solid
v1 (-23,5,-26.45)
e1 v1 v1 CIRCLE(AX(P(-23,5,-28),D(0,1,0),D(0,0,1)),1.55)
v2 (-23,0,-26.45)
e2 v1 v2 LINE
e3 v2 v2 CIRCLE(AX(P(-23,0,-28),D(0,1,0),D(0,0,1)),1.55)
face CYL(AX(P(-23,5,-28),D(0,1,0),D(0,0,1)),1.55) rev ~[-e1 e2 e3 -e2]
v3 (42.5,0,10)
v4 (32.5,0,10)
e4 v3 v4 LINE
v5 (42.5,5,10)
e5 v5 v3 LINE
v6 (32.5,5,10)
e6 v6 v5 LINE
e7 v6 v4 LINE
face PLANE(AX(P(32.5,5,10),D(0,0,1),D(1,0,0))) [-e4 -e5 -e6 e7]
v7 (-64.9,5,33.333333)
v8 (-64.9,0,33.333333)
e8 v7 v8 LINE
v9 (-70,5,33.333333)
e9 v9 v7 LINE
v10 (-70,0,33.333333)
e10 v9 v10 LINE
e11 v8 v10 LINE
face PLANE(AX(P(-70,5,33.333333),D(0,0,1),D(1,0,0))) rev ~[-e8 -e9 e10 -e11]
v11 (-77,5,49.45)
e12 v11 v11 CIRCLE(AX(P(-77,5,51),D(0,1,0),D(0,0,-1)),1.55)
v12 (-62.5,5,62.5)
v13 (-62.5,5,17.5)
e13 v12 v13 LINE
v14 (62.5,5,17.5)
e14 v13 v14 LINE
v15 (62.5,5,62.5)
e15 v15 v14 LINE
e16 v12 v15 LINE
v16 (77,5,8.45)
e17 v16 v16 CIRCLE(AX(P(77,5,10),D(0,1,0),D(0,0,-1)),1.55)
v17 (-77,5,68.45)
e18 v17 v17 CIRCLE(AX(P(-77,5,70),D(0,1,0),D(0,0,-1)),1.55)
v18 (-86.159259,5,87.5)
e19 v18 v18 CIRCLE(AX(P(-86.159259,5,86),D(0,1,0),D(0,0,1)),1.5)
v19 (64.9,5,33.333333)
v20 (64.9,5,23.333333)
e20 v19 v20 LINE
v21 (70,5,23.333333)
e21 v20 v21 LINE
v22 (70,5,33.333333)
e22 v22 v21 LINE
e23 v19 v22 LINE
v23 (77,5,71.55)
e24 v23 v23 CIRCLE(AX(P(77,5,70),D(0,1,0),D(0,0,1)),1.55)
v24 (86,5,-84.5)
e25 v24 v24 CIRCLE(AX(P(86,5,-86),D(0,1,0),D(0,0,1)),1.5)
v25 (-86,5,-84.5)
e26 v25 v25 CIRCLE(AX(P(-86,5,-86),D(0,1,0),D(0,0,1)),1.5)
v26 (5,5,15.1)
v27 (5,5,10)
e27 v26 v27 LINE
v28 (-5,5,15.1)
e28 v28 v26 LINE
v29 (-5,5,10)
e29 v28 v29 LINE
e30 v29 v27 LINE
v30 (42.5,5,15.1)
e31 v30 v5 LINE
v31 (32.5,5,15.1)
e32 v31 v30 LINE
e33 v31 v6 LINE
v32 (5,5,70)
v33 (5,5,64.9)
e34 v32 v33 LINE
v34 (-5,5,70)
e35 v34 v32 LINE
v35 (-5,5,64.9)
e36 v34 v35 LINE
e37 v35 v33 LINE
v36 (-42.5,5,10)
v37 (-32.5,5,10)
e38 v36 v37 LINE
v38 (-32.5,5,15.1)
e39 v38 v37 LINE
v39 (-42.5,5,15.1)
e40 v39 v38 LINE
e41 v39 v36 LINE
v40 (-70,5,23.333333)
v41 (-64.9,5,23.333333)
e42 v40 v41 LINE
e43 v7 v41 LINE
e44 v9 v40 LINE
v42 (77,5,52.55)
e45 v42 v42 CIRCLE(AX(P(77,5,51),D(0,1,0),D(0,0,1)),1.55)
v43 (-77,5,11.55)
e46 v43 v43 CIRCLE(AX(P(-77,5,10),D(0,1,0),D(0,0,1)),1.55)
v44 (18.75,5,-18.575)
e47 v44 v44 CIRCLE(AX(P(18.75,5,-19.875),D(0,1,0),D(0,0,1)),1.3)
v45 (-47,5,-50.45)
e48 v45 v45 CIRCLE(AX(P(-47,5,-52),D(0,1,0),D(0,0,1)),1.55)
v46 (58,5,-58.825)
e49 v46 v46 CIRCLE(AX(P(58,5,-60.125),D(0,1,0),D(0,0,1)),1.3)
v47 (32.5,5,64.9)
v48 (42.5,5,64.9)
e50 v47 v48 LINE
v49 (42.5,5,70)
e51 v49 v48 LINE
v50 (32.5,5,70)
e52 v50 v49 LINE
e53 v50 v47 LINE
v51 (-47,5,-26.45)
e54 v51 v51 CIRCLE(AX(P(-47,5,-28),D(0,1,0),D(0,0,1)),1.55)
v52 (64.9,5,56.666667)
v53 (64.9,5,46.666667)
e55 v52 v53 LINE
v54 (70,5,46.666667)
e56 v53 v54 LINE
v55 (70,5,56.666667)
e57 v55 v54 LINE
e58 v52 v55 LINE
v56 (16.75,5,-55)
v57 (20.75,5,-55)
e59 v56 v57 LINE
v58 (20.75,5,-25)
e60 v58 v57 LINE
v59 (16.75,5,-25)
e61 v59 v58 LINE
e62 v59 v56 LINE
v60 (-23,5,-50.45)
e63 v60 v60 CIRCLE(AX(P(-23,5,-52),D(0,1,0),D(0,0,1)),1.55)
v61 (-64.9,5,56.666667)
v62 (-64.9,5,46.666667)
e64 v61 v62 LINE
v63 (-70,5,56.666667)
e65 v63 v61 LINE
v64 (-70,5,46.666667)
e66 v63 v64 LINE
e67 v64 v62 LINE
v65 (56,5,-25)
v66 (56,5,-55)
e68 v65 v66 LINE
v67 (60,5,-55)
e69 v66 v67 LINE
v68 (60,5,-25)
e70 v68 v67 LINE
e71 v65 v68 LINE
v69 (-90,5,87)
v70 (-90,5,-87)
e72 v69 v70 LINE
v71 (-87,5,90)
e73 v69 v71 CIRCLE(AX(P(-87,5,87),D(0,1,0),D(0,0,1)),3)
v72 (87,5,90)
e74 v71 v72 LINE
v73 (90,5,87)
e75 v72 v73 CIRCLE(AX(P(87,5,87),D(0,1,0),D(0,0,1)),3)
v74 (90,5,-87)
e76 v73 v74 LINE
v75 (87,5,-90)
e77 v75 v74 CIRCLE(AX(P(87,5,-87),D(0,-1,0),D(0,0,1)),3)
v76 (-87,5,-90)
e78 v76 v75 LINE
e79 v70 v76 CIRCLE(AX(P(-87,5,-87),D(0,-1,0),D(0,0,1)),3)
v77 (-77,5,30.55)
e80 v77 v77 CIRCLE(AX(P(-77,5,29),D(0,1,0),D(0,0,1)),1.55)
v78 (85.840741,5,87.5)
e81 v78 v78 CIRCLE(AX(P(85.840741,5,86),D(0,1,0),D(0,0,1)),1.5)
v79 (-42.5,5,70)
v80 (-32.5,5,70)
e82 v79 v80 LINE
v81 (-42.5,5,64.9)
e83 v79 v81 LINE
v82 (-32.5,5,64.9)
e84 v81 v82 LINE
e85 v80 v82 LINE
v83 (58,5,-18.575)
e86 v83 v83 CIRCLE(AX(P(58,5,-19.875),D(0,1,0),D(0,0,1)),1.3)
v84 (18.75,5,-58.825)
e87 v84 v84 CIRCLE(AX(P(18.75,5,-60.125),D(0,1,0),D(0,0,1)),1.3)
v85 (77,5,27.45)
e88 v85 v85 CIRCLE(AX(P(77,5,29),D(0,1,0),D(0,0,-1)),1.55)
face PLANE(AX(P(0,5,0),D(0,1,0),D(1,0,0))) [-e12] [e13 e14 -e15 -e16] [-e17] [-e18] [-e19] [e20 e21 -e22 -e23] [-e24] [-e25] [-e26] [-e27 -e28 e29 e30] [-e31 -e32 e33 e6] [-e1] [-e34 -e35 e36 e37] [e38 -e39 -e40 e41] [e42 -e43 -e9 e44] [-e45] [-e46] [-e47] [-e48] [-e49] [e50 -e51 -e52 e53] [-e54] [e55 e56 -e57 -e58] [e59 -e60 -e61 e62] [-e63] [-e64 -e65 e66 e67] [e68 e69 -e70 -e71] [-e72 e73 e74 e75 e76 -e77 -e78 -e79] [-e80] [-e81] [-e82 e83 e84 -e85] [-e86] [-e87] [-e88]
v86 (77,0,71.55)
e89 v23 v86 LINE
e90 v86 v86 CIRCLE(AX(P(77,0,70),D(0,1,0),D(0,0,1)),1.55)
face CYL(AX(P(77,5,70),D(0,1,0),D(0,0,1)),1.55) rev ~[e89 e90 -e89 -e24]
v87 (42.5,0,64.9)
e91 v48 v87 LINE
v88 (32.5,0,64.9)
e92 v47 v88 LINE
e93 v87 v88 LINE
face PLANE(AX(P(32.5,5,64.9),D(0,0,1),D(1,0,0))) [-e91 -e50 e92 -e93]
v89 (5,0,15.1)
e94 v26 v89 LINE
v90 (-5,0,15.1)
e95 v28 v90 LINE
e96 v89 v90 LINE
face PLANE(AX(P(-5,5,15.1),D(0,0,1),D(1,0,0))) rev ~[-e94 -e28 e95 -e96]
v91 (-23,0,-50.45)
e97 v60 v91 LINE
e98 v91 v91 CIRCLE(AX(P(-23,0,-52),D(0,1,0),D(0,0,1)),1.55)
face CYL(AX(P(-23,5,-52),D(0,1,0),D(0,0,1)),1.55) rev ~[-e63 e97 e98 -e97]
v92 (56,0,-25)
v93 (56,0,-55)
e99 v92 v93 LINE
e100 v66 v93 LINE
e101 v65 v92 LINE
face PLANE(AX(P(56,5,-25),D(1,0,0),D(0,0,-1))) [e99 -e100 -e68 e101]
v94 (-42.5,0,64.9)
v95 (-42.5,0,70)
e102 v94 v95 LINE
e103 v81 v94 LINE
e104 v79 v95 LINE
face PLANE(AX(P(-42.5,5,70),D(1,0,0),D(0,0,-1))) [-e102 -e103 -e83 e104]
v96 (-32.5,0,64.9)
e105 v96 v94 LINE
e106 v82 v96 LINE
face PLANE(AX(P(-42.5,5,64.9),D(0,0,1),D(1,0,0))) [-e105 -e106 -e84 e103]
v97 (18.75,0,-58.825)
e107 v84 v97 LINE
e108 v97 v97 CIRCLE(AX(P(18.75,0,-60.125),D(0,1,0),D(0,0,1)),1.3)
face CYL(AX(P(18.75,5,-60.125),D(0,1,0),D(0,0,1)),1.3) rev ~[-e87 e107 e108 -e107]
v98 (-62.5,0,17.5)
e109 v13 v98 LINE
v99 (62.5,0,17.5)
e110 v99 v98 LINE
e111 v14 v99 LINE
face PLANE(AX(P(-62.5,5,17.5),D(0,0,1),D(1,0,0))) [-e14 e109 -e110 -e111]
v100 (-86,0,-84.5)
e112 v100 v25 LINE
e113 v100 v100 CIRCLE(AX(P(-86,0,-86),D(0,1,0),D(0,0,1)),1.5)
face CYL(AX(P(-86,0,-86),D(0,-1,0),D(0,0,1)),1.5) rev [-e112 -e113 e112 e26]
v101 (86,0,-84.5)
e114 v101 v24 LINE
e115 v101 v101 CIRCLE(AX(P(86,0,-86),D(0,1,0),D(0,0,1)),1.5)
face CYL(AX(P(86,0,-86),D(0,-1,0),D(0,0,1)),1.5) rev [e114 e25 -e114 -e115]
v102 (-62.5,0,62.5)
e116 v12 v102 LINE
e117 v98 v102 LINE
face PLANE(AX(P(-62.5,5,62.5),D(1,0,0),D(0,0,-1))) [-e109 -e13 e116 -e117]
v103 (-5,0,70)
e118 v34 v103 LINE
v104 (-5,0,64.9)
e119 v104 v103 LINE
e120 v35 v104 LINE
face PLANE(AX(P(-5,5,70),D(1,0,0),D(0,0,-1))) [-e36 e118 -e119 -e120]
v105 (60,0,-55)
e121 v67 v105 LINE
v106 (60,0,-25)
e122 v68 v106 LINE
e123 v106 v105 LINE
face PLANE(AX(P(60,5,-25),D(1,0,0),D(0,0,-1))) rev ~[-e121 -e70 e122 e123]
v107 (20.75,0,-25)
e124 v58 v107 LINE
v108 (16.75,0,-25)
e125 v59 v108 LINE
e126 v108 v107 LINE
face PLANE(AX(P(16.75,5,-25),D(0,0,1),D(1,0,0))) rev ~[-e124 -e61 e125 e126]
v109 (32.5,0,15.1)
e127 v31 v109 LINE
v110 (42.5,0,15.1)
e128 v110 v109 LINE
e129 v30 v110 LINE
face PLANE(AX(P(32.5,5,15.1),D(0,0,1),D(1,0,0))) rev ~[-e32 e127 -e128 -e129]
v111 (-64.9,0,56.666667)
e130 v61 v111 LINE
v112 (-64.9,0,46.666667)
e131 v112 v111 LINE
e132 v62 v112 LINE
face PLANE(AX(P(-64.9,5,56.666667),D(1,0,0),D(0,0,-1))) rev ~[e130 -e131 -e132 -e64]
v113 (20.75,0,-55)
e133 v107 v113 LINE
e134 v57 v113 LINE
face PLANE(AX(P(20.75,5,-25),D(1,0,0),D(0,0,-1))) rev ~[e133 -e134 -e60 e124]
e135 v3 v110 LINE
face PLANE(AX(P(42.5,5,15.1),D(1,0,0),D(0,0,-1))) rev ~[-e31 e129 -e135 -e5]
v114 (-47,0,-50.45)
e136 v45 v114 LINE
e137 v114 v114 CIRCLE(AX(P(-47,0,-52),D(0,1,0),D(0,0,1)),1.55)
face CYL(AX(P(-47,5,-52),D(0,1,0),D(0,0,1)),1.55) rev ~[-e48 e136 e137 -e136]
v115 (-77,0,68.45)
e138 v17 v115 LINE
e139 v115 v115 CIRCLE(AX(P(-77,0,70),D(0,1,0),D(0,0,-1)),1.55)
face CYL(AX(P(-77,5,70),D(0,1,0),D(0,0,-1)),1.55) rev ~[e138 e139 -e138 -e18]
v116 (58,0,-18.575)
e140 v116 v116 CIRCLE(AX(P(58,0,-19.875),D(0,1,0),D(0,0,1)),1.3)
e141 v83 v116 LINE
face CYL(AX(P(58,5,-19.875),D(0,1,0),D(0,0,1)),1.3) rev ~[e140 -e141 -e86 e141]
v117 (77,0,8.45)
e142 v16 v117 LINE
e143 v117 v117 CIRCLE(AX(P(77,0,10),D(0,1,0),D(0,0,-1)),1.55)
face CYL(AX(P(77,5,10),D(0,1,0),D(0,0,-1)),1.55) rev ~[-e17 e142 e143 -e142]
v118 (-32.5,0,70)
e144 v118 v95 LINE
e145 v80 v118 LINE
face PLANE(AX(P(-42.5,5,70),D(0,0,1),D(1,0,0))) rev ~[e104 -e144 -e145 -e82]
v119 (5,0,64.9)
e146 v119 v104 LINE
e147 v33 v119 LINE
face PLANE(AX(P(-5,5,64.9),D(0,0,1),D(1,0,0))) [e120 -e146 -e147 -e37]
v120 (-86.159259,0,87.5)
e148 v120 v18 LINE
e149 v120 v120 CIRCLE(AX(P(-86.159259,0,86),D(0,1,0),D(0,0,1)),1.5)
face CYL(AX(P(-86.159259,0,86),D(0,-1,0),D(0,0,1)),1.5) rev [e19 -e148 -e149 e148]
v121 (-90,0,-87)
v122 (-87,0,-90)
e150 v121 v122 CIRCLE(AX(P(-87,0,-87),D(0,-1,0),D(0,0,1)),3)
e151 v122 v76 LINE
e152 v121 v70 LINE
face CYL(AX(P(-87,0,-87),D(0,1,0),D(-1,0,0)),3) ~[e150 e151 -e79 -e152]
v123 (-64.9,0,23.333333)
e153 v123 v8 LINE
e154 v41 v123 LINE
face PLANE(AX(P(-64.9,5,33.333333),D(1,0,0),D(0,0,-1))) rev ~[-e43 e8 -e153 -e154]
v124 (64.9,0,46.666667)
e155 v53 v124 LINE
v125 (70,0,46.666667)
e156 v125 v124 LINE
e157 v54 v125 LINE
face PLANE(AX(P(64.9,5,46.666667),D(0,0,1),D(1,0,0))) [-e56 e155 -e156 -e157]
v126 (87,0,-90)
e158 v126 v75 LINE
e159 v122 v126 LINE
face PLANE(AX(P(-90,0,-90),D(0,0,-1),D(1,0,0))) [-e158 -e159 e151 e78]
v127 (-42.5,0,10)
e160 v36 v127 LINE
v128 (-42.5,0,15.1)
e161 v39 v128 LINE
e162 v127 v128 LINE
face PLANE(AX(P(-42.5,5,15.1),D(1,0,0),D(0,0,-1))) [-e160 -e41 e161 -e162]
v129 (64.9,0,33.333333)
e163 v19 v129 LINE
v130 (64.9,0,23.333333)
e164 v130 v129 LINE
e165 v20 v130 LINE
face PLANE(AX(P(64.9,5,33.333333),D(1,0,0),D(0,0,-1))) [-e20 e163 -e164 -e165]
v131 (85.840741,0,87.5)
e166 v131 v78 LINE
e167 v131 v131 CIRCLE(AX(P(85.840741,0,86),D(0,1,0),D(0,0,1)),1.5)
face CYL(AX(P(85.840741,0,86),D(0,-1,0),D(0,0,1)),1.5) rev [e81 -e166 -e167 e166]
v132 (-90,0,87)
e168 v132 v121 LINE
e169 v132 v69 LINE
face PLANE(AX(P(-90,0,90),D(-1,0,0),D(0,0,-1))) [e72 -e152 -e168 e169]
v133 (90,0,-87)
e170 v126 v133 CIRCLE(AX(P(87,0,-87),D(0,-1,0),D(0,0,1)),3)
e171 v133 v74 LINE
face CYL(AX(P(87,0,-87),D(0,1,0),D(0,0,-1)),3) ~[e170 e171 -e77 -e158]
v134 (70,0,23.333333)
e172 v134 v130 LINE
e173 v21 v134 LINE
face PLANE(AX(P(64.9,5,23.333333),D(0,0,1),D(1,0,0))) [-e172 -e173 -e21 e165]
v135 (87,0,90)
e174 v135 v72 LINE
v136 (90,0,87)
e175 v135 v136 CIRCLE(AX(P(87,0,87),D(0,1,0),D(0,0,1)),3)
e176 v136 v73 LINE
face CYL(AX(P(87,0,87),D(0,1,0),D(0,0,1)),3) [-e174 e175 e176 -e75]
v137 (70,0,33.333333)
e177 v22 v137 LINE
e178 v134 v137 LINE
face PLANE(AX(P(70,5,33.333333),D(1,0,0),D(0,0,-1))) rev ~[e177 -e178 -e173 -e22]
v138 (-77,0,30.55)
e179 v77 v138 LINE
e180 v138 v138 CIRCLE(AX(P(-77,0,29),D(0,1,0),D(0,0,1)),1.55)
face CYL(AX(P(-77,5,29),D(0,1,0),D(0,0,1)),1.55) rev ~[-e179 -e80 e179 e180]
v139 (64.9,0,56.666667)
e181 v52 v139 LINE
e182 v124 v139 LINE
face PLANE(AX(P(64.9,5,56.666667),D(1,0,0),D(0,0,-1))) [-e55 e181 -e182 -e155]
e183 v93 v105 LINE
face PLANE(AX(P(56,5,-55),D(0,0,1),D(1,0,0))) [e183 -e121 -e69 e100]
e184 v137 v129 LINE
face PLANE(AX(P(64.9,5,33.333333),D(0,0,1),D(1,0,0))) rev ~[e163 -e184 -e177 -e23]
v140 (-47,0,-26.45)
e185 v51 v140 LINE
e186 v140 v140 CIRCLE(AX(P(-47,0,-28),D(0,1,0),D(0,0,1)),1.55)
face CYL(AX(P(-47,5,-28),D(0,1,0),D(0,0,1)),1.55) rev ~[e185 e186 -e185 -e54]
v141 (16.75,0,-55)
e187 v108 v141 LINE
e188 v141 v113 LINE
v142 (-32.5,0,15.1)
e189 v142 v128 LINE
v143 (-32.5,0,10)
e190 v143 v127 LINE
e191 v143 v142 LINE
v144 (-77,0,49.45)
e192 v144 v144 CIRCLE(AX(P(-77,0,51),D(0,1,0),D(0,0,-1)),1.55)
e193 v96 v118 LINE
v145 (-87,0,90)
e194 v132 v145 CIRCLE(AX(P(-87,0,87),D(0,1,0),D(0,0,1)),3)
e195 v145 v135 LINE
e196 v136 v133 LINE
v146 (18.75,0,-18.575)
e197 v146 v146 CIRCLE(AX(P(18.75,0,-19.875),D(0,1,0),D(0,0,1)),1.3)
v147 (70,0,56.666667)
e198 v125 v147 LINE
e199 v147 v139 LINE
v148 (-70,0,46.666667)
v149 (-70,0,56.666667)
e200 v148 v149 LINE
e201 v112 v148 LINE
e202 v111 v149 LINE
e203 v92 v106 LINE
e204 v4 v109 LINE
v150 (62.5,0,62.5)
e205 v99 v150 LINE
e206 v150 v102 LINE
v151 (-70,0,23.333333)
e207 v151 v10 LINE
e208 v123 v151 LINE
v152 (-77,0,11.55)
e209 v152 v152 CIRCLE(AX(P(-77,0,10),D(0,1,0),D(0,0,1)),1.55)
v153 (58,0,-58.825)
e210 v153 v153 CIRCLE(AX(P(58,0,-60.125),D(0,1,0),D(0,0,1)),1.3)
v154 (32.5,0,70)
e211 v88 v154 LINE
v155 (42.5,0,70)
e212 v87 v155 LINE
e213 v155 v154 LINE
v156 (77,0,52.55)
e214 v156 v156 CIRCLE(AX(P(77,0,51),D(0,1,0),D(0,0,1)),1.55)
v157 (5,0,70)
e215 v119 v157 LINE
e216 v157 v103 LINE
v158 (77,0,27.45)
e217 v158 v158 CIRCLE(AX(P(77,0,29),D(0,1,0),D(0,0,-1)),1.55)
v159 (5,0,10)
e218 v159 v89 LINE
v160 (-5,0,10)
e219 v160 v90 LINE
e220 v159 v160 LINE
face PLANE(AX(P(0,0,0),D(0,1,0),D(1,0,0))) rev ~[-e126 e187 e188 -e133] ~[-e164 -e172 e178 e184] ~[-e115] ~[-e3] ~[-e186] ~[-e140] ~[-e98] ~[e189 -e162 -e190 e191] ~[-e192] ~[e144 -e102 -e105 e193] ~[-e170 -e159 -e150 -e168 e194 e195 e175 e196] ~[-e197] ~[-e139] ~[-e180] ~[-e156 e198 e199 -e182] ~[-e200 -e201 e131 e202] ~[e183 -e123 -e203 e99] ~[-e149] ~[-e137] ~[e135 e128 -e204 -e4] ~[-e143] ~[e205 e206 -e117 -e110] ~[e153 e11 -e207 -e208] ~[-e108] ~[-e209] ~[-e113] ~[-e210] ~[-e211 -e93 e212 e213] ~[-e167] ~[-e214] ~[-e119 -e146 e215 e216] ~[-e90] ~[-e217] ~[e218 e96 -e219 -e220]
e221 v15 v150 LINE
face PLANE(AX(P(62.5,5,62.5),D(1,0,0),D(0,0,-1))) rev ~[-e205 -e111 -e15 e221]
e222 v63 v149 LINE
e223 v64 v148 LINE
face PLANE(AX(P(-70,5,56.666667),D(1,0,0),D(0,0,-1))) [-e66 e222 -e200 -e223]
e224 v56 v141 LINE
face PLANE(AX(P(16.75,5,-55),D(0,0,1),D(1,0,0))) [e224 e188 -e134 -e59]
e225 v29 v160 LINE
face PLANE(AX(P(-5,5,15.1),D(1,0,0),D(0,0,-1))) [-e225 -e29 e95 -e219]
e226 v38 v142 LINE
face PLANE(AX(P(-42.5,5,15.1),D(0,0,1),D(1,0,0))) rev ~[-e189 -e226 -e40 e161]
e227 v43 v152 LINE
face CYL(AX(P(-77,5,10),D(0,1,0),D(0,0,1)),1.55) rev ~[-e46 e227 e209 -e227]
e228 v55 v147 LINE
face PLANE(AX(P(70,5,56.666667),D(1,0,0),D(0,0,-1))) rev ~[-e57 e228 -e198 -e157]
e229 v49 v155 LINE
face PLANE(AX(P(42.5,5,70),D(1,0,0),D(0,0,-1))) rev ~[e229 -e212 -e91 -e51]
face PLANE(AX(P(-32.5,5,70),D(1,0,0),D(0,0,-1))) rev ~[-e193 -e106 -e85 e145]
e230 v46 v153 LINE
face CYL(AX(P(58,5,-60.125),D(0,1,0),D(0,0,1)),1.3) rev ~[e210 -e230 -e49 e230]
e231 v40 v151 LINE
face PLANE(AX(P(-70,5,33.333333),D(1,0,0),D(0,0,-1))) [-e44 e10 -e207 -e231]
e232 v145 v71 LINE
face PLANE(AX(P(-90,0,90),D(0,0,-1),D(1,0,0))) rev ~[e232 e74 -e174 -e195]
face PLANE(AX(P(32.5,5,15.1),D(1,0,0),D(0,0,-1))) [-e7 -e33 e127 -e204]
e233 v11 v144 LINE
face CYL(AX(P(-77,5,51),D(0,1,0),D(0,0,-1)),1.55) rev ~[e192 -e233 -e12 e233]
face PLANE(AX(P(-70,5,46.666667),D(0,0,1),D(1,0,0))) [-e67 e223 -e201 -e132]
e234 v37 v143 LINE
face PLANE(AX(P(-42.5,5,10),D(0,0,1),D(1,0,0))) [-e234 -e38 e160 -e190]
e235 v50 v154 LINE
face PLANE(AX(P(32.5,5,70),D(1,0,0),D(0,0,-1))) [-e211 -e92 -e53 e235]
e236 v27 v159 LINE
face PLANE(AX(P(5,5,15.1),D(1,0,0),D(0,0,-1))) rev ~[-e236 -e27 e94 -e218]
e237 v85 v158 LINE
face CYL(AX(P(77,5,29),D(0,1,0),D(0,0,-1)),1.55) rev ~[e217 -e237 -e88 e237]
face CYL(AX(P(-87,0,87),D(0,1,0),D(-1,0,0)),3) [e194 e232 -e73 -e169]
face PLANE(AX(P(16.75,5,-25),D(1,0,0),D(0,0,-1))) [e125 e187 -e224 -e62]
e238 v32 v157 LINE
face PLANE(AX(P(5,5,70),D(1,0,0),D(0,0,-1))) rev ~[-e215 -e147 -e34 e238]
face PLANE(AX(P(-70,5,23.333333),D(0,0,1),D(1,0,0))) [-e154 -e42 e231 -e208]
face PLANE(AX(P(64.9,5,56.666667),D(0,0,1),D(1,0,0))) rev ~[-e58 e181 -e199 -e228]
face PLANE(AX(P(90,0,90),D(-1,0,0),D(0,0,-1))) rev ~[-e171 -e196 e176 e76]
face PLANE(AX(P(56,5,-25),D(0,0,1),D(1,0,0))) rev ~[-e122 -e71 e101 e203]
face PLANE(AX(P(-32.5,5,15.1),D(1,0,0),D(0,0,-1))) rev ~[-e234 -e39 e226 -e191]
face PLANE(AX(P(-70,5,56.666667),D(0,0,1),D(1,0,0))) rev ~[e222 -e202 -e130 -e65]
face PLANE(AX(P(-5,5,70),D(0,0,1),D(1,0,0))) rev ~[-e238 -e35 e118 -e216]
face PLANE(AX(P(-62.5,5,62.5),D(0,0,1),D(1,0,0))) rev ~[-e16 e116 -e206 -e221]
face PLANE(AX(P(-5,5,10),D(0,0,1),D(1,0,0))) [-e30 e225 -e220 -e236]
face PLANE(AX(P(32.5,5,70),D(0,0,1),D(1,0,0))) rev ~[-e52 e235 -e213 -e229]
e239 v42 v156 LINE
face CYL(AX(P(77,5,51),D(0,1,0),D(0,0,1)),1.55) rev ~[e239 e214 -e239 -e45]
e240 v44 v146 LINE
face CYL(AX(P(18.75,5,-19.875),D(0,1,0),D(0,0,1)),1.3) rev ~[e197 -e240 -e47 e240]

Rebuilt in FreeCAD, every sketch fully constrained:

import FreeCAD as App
import Part
import Sketcher
from FreeCAD import Vector
Q = App.Units.Quantity


def edges_at(feature, points):
    """Names of the edges that pass closest to the given points."""
    edges = feature.Shape.Edges
    near = lambda p: min(range(len(edges)), key=lambda i: edges[i].distToShape(Part.Vertex(*p))[0])
    return sorted({f"Edge{near(p) + 1}" for p in points})


def add_polygon(sketch, points):
    """Adds a closed chain of lines whose ends are joined by coincident constraints."""
    first, n = sketch.GeometryCount, len(points)
    for a, b in zip(points, points[1:] + points[:1]):
        sketch.addGeometry(Part.LineSegment(App.Vector(*a, 0), App.Vector(*b, 0)), False)
    for i in range(n):
        sketch.addConstraint(Sketcher.Constraint("Coincident", first + i, 2, first + (i + 1) % n, 1))

doc = App.newDocument("Part")
body = doc.addObject("PartDesign::Body", "Body")

# Sketch on XZ plane
sketch1 = doc.addObject("Sketcher::SketchObject", "Sketch")
body.addObject(sketch1)
sketch1.AttachmentSupport = (doc.XZ_Plane, [""])
sketch1.MapMode = "FlatFace"
add_polygon(sketch1, [(-90, -90), (-90, 90), (90, 90), (90, -90)])  # lines 0-3
sketch1.addGeometry(Part.Circle(Vector(-86.2, 86, 0), Vector(0, 0, 1), 1.5), False)  # 4
sketch1.addGeometry(Part.Circle(Vector(85.8, 86, 0), Vector(0, 0, 1), 1.5), False)  # 5
sketch1.addGeometry(Part.Circle(Vector(-86, -86, 0), Vector(0, 0, 1), 1.5), False)  # 6
sketch1.addGeometry(Part.Circle(Vector(86, -86, 0), Vector(0, 0, 1), 1.5), False)  # 7
sketch1.addConstraint(Sketcher.Constraint("Vertical", 0))
sketch1.addConstraint(Sketcher.Constraint("Horizontal", 1))
sketch1.addConstraint(Sketcher.Constraint("Vertical", 2))
sketch1.addConstraint(Sketcher.Constraint("Horizontal", 3))
sketch1.addConstraint(Sketcher.Constraint("Equal", 4, 5))
sketch1.addConstraint(Sketcher.Constraint("Equal", 5, 6))
sketch1.addConstraint(Sketcher.Constraint("Equal", 6, 7))
sketch1.addConstraint(Sketcher.Constraint("Symmetric", 0, 2, 2, 2, -1, 1))
sketch1.addConstraint(Sketcher.Constraint("Symmetric", 6, 3, 7, 3, -2))
sketch1.addConstraint(Sketcher.Constraint("Horizontal", 4, 3, 5, 3))
sketch1.addConstraint(Sketcher.Constraint("Equal", 3, 0))
sketch1.addConstraint(Sketcher.Constraint("Diameter", 4, Q("3 mm")))
sketch1.addConstraint(Sketcher.Constraint("DistanceX", 1, 1, 1, 2, Q("180 mm")))
sketch1.addConstraint(Sketcher.Constraint("DistanceY", -1, 1, 4, 3, Q("86 mm")))
sketch1.addConstraint(Sketcher.Constraint("DistanceX", 6, 3, -1, 1, Q("86 mm")))
sketch1.addConstraint(Sketcher.Constraint("DistanceY", 6, 3, -1, 1, Q("86 mm")))
sketch1.addConstraint(Sketcher.Constraint("DistanceX", 4, 3, 5, 3, Q("172 mm")))
sketch1.addConstraint(Sketcher.Constraint("DistanceX", 4, 3, -1, 1, Q("86.159259 mm")))
pad1 = doc.addObject("PartDesign::Pad", "Pad")
body.addObject(pad1)
pad1.Profile = sketch1
pad1.Length = 5
pad1.Reversed = True

# Sketch on XZ plane
sketch2 = doc.addObject("Sketcher::SketchObject", "Sketch001")
body.addObject(sketch2)
sketch2.AttachmentSupport = (doc.XZ_Plane, [""])
sketch2.MapMode = "FlatFace"
sketch2.AttachmentOffset = App.Placement(Vector(0, 0, -5), App.Rotation())
add_polygon(sketch2, [(65, 23), (65, 33), (70, 33), (70, 23)])  # lines 0-3
sketch2.addConstraint(Sketcher.Constraint("Vertical", 0))
sketch2.addConstraint(Sketcher.Constraint("Horizontal", 1))
sketch2.addConstraint(Sketcher.Constraint("Vertical", 2))
sketch2.addConstraint(Sketcher.Constraint("Horizontal", 3))
sketch2.addConstraint(Sketcher.Constraint("DistanceY", 0, 1, 0, 2, Q("10 mm")))
sketch2.addConstraint(Sketcher.Constraint("DistanceX", 1, 1, 1, 2, Q("5.1 mm")))
sketch2.addConstraint(Sketcher.Constraint("DistanceX", -1, 1, 1, 2, Q("70 mm")))
sketch2.addConstraint(Sketcher.Constraint("DistanceY", -1, 1, 0, 2, Q("33.333333 mm")))
pocket1 = doc.addObject("PartDesign::Pocket", "Pocket")
body.addObject(pocket1)
pocket1.Profile = sketch2
pocket1.Type = "UpToFirst"
pocket1.Reversed = True

# Sketch on XZ plane
sketch3 = doc.addObject("Sketcher::SketchObject", "Sketch002")
body.addObject(sketch3)
sketch3.AttachmentSupport = (doc.XZ_Plane, [""])
sketch3.MapMode = "FlatFace"
sketch3.AttachmentOffset = App.Placement(Vector(0, 0, -5), App.Rotation())
add_polygon(sketch3, [(32, 10), (32, 15), (42, 15), (42, 10)])  # lines 0-3
sketch3.addConstraint(Sketcher.Constraint("Vertical", 0))
sketch3.addConstraint(Sketcher.Constraint("Horizontal", 1))
sketch3.addConstraint(Sketcher.Constraint("Vertical", 2))
sketch3.addConstraint(Sketcher.Constraint("Horizontal", 3))
sketch3.addConstraint(Sketcher.Constraint("DistanceX", 1, 1, 1, 2, Q("10 mm")))
sketch3.addConstraint(Sketcher.Constraint("DistanceY", 0, 1, 0, 2, Q("5.1 mm")))
sketch3.addConstraint(Sketcher.Constraint("DistanceY", -1, 1, 2, 2, Q("10 mm")))
sketch3.addConstraint(Sketcher.Constraint("DistanceX", -1, 1, 0, 2, Q("32.5 mm")))
pocket2 = doc.addObject("PartDesign::Pocket", "Pocket001")
body.addObject(pocket2)
pocket2.Profile = sketch3
pocket2.Type = "UpToFirst"
pocket2.Reversed = True

# Sketch on XZ plane
sketch4 = doc.addObject("Sketcher::SketchObject", "Sketch003")
body.addObject(sketch4)
sketch4.AttachmentSupport = (doc.XZ_Plane, [""])
sketch4.MapMode = "FlatFace"
sketch4.AttachmentOffset = App.Placement(Vector(0, 0, -5), App.Rotation())
add_polygon(sketch4, [(-5, 10), (-5, 15), (5, 15), (5, 10)])  # lines 0-3
sketch4.addConstraint(Sketcher.Constraint("Vertical", 0))
sketch4.addConstraint(Sketcher.Constraint("Horizontal", 1))
sketch4.addConstraint(Sketcher.Constraint("Vertical", 2))
sketch4.addConstraint(Sketcher.Constraint("Horizontal", 3))
sketch4.addConstraint(Sketcher.Constraint("DistanceX", 1, 1, 1, 2, Q("10 mm")))
sketch4.addConstraint(Sketcher.Constraint("DistanceY", 0, 1, 0, 2, Q("5.1 mm")))
sketch4.addConstraint(Sketcher.Constraint("DistanceX", 0, 2, -1, 1, Q("5 mm")))
sketch4.addConstraint(Sketcher.Constraint("DistanceY", -1, 1, 2, 2, Q("10 mm")))
pocket3 = doc.addObject("PartDesign::Pocket", "Pocket002")
body.addObject(pocket3)
pocket3.Profile = sketch4
pocket3.Type = "UpToFirst"
pocket3.Reversed = True

# Sketch on XZ plane
sketch5 = doc.addObject("Sketcher::SketchObject", "Sketch004")
body.addObject(sketch5)
sketch5.AttachmentSupport = (doc.XZ_Plane, [""])
sketch5.MapMode = "FlatFace"
sketch5.AttachmentOffset = App.Placement(Vector(0, 0, -5), App.Rotation())
add_polygon(sketch5, [(-42, 10), (-42, 15), (-32, 15), (-32, 10)])  # lines 0-3
sketch5.addConstraint(Sketcher.Constraint("Vertical", 0))
sketch5.addConstraint(Sketcher.Constraint("Horizontal", 1))
sketch5.addConstraint(Sketcher.Constraint("Vertical", 2))
sketch5.addConstraint(Sketcher.Constraint("Horizontal", 3))
sketch5.addConstraint(Sketcher.Constraint("DistanceX", 1, 1, 1, 2, Q("10 mm")))
sketch5.addConstraint(Sketcher.Constraint("DistanceY", 0, 1, 0, 2, Q("5.1 mm")))
sketch5.addConstraint(Sketcher.Constraint("DistanceY", -1, 1, 2, 2, Q("10 mm")))
sketch5.addConstraint(Sketcher.Constraint("DistanceX", 0, 2, -1, 1, Q("42.5 mm")))
pocket4 = doc.addObject("PartDesign::Pocket", "Pocket003")
body.addObject(pocket4)
pocket4.Profile = sketch5
pocket4.Type = "UpToFirst"
pocket4.Reversed = True

# Sketch on XZ plane
sketch6 = doc.addObject("Sketcher::SketchObject", "Sketch005")
body.addObject(sketch6)
sketch6.AttachmentSupport = (doc.XZ_Plane, [""])
sketch6.MapMode = "FlatFace"
sketch6.AttachmentOffset = App.Placement(Vector(0, 0, -5), App.Rotation())
add_polygon(sketch6, [(-70, 23), (-70, 33), (-65, 33), (-65, 23)])  # lines 0-3
sketch6.addConstraint(Sketcher.Constraint("Vertical", 0))
sketch6.addConstraint(Sketcher.Constraint("Horizontal", 1))
sketch6.addConstraint(Sketcher.Constraint("Vertical", 2))
sketch6.addConstraint(Sketcher.Constraint("Horizontal", 3))
sketch6.addConstraint(Sketcher.Constraint("DistanceY", 0, 1, 0, 2, Q("10 mm")))
sketch6.addConstraint(Sketcher.Constraint("DistanceX", 1, 1, 1, 2, Q("5.1 mm")))
sketch6.addConstraint(Sketcher.Constraint("DistanceX", 0, 2, -1, 1, Q("70 mm")))
sketch6.addConstraint(Sketcher.Constraint("DistanceY", -1, 1, 0, 2, Q("33.333333 mm")))
pocket5 = doc.addObject("PartDesign::Pocket", "Pocket004")
body.addObject(pocket5)
pocket5.Profile = sketch6
pocket5.Type = "UpToFirst"
pocket5.Reversed = True

# Sketch on XZ plane
sketch7 = doc.addObject("Sketcher::SketchObject", "Sketch006")
body.addObject(sketch7)
sketch7.AttachmentSupport = (doc.XZ_Plane, [""])
sketch7.MapMode = "FlatFace"
sketch7.AttachmentOffset = App.Placement(Vector(0, 0, -5), App.Rotation())
add_polygon(sketch7, [(-42, 65), (-42, 70), (-32, 70), (-32, 65)])  # lines 0-3
sketch7.addConstraint(Sketcher.Constraint("Vertical", 0))
sketch7.addConstraint(Sketcher.Constraint("Horizontal", 1))
sketch7.addConstraint(Sketcher.Constraint("Vertical", 2))
sketch7.addConstraint(Sketcher.Constraint("Horizontal", 3))
sketch7.addConstraint(Sketcher.Constraint("DistanceX", 1, 1, 1, 2, Q("10 mm")))
sketch7.addConstraint(Sketcher.Constraint("DistanceY", 0, 1, 0, 2, Q("5.1 mm")))
sketch7.addConstraint(Sketcher.Constraint("DistanceY", -1, 1, 0, 2, Q("70 mm")))
sketch7.addConstraint(Sketcher.Constraint("DistanceX", 0, 2, -1, 1, Q("42.5 mm")))
pocket6 = doc.addObject("PartDesign::Pocket", "Pocket005")
body.addObject(pocket6)
pocket6.Profile = sketch7
pocket6.Type = "UpToFirst"
pocket6.Reversed = True

# Sketch on XZ plane
sketch8 = doc.addObject("Sketcher::SketchObject", "Sketch007")
body.addObject(sketch8)
sketch8.AttachmentSupport = (doc.XZ_Plane, [""])
sketch8.MapMode = "FlatFace"
sketch8.AttachmentOffset = App.Placement(Vector(0, 0, -5), App.Rotation())
add_polygon(sketch8, [(65, 47), (65, 57), (70, 57), (70, 47)])  # lines 0-3
sketch8.addConstraint(Sketcher.Constraint("Vertical", 0))
sketch8.addConstraint(Sketcher.Constraint("Horizontal", 1))
sketch8.addConstraint(Sketcher.Constraint("Vertical", 2))
sketch8.addConstraint(Sketcher.Constraint("Horizontal", 3))
sketch8.addConstraint(Sketcher.Constraint("DistanceY", 0, 1, 0, 2, Q("10 mm")))
sketch8.addConstraint(Sketcher.Constraint("DistanceX", 1, 1, 1, 2, Q("5.1 mm")))
sketch8.addConstraint(Sketcher.Constraint("DistanceX", -1, 1, 1, 2, Q("70 mm")))
sketch8.addConstraint(Sketcher.Constraint("DistanceY", -1, 1, 0, 2, Q("56.666667 mm")))
pocket7 = doc.addObject("PartDesign::Pocket", "Pocket006")
body.addObject(pocket7)
pocket7.Profile = sketch8
pocket7.Type = "UpToFirst"
pocket7.Reversed = True

# Sketch on XZ plane
sketch9 = doc.addObject("Sketcher::SketchObject", "Sketch008")
body.addObject(sketch9)
sketch9.AttachmentSupport = (doc.XZ_Plane, [""])
sketch9.MapMode = "FlatFace"
sketch9.AttachmentOffset = App.Placement(Vector(0, 0, -5), App.Rotation())
add_polygon(sketch9, [(32, 65), (32, 70), (42, 70), (42, 65)])  # lines 0-3
sketch9.addConstraint(Sketcher.Constraint("Vertical", 0))
sketch9.addConstraint(Sketcher.Constraint("Horizontal", 1))
sketch9.addConstraint(Sketcher.Constraint("Vertical", 2))
sketch9.addConstraint(Sketcher.Constraint("Horizontal", 3))
sketch9.addConstraint(Sketcher.Constraint("DistanceX", 1, 1, 1, 2, Q("10 mm")))
sketch9.addConstraint(Sketcher.Constraint("DistanceY", 0, 1, 0, 2, Q("5.1 mm")))
sketch9.addConstraint(Sketcher.Constraint("DistanceY", -1, 1, 0, 2, Q("70 mm")))
sketch9.addConstraint(Sketcher.Constraint("DistanceX", -1, 1, 0, 2, Q("32.5 mm")))
pocket8 = doc.addObject("PartDesign::Pocket", "Pocket007")
body.addObject(pocket8)
pocket8.Profile = sketch9
pocket8.Type = "UpToFirst"
pocket8.Reversed = True

# Sketch on XZ plane
sketch10 = doc.addObject("Sketcher::SketchObject", "Sketch009")
body.addObject(sketch10)
sketch10.AttachmentSupport = (doc.XZ_Plane, [""])
sketch10.MapMode = "FlatFace"
sketch10.AttachmentOffset = App.Placement(Vector(0, 0, -5), App.Rotation())
add_polygon(sketch10, [(-5, 65), (-5, 70), (5, 70), (5, 65)])  # lines 0-3
sketch10.addConstraint(Sketcher.Constraint("Vertical", 0))
sketch10.addConstraint(Sketcher.Constraint("Horizontal", 1))
sketch10.addConstraint(Sketcher.Constraint("Vertical", 2))
sketch10.addConstraint(Sketcher.Constraint("Horizontal", 3))
sketch10.addConstraint(Sketcher.Constraint("DistanceX", 1, 1, 1, 2, Q("10 mm")))
sketch10.addConstraint(Sketcher.Constraint("DistanceY", 0, 1, 0, 2, Q("5.1 mm")))
sketch10.addConstraint(Sketcher.Constraint("DistanceX", 0, 2, -1, 1, Q("5 mm")))
sketch10.addConstraint(Sketcher.Constraint("DistanceY", -1, 1, 0, 2, Q("70 mm")))
pocket9 = doc.addObject("PartDesign::Pocket", "Pocket008")
body.addObject(pocket9)
pocket9.Profile = sketch10
pocket9.Type = "UpToFirst"
pocket9.Reversed = True

# Sketch on XZ plane
sketch11 = doc.addObject("Sketcher::SketchObject", "Sketch010")
body.addObject(sketch11)
sketch11.AttachmentSupport = (doc.XZ_Plane, [""])
sketch11.MapMode = "FlatFace"
sketch11.AttachmentOffset = App.Placement(Vector(0, 0, -5), App.Rotation())
add_polygon(sketch11, [(-70, 47), (-70, 57), (-65, 57), (-65, 47)])  # lines 0-3
sketch11.addConstraint(Sketcher.Constraint("Vertical", 0))
sketch11.addConstraint(Sketcher.Constraint("Horizontal", 1))
sketch11.addConstraint(Sketcher.Constraint("Vertical", 2))
sketch11.addConstraint(Sketcher.Constraint("Horizontal", 3))
sketch11.addConstraint(Sketcher.Constraint("DistanceY", 0, 1, 0, 2, Q("10 mm")))
sketch11.addConstraint(Sketcher.Constraint("DistanceX", 1, 1, 1, 2, Q("5.1 mm")))
sketch11.addConstraint(Sketcher.Constraint("DistanceX", 0, 2, -1, 1, Q("70 mm")))
sketch11.addConstraint(Sketcher.Constraint("DistanceY", -1, 1, 0, 2, Q("56.666667 mm")))
pocket10 = doc.addObject("PartDesign::Pocket", "Pocket009")
body.addObject(pocket10)
pocket10.Profile = sketch11
pocket10.Type = "UpToFirst"
pocket10.Reversed = True

# Sketch on XZ plane
sketch12 = doc.addObject("Sketcher::SketchObject", "Sketch011")
body.addObject(sketch12)
sketch12.AttachmentSupport = (doc.XZ_Plane, [""])
sketch12.MapMode = "FlatFace"
sketch12.AttachmentOffset = App.Placement(Vector(0, 0, -5), App.Rotation())
add_polygon(sketch12, [(-62, 18), (-62, 62), (62, 62), (62, 18)])  # lines 0-3
sketch12.addConstraint(Sketcher.Constraint("Vertical", 0))
sketch12.addConstraint(Sketcher.Constraint("Horizontal", 1))
sketch12.addConstraint(Sketcher.Constraint("Vertical", 2))
sketch12.addConstraint(Sketcher.Constraint("Horizontal", 3))
sketch12.addConstraint(Sketcher.Constraint("DistanceX", 1, 1, 1, 2, Q("125 mm")))
sketch12.addConstraint(Sketcher.Constraint("DistanceY", 0, 1, 0, 2, Q("45 mm")))
sketch12.addConstraint(Sketcher.Constraint("DistanceX", 0, 2, -1, 1, Q("62.5 mm")))
sketch12.addConstraint(Sketcher.Constraint("DistanceY", -1, 1, 0, 2, Q("62.5 mm")))
pocket11 = doc.addObject("PartDesign::Pocket", "Pocket010")
body.addObject(pocket11)
pocket11.Profile = sketch12
pocket11.Type = "UpToFirst"
pocket11.Reversed = True

# Sketch on XZ plane
sketch13 = doc.addObject("Sketcher::SketchObject", "Sketch012")
body.addObject(sketch13)
sketch13.AttachmentSupport = (doc.XZ_Plane, [""])
sketch13.MapMode = "FlatFace"
sketch13.AttachmentOffset = App.Placement(Vector(0, 0, -5), App.Rotation())
sketch13.addGeometry(Part.Circle(Vector(-47, -52, 0), Vector(0, 0, 1), 1.6), False)
sketch13.addGeometry(Part.Circle(Vector(-23, -52, 0), Vector(0, 0, 1), 1.6), False)
sketch13.addGeometry(Part.Circle(Vector(-23, -28, 0), Vector(0, 0, 1), 1.6), False)
sketch13.addGeometry(Part.Circle(Vector(-47, -28, 0), Vector(0, 0, 1), 1.6), False)
sketch13.addConstraint(Sketcher.Constraint("Equal", 0, 1))
sketch13.addConstraint(Sketcher.Constraint("Equal", 1, 2))
sketch13.addConstraint(Sketcher.Constraint("Equal", 2, 3))
sketch13.addConstraint(Sketcher.Constraint("Horizontal", 0, 3, 1, 3))
sketch13.addConstraint(Sketcher.Constraint("Horizontal", 2, 3, 3, 3))
sketch13.addConstraint(Sketcher.Constraint("Vertical", 1, 3, 2, 3))
sketch13.addConstraint(Sketcher.Constraint("Vertical", 0, 3, 3, 3))
sketch13.addConstraint(Sketcher.Constraint("Diameter", 0, Q("3.1 mm")))
sketch13.addConstraint(Sketcher.Constraint("DistanceX", 0, 3, -1, 1, Q("47 mm")))
sketch13.addConstraint(Sketcher.Constraint("DistanceY", 0, 3, -1, 1, Q("52 mm")))
sketch13.addConstraint(Sketcher.Constraint("DistanceX", 1, 3, -1, 1, Q("23 mm")))
sketch13.addConstraint(Sketcher.Constraint("DistanceY", 2, 3, -1, 1, Q("28 mm")))
pocket12 = doc.addObject("PartDesign::Pocket", "Pocket011")
body.addObject(pocket12)
pocket12.Profile = sketch13
pocket12.Type = "ThroughAll"
pocket12.Reversed = True

# Sketch on XZ plane
sketch14 = doc.addObject("Sketcher::SketchObject", "Sketch013")
body.addObject(sketch14)
sketch14.AttachmentSupport = (doc.XZ_Plane, [""])
sketch14.MapMode = "FlatFace"
sketch14.AttachmentOffset = App.Placement(Vector(0, 0, -5), App.Rotation())
add_polygon(sketch14, [(16.8, -55), (16.8, -25), (20.8, -25), (20.8, -55)])  # lines 0-3
add_polygon(sketch14, [(56, -55), (56, -25), (60, -25), (60, -55)])  # lines 4-7
sketch14.addGeometry(Part.Circle(Vector(58, -60.1, 0), Vector(0, 0, 1), 1.3), False)  # 8
sketch14.addGeometry(Part.Circle(Vector(18.8, -60.1, 0), Vector(0, 0, 1), 1.3), False)  # 9
sketch14.addGeometry(Part.Circle(Vector(18.8, -19.9, 0), Vector(0, 0, 1), 1.3), False)  # 10
sketch14.addGeometry(Part.Circle(Vector(58, -19.9, 0), Vector(0, 0, 1), 1.3), False)  # 11
sketch14.addConstraint(Sketcher.Constraint("Vertical", 0))
sketch14.addConstraint(Sketcher.Constraint("Horizontal", 1))
sketch14.addConstraint(Sketcher.Constraint("Vertical", 2))
sketch14.addConstraint(Sketcher.Constraint("Horizontal", 3))
sketch14.addConstraint(Sketcher.Constraint("Vertical", 4))
sketch14.addConstraint(Sketcher.Constraint("Horizontal", 5))
sketch14.addConstraint(Sketcher.Constraint("Vertical", 6))
sketch14.addConstraint(Sketcher.Constraint("Horizontal", 7))
sketch14.addConstraint(Sketcher.Constraint("Equal", 8, 9))
sketch14.addConstraint(Sketcher.Constraint("Equal", 9, 10))
sketch14.addConstraint(Sketcher.Constraint("Equal", 10, 11))
sketch14.addConstraint(Sketcher.Constraint("Horizontal", 8, 3, 9, 3))
sketch14.addConstraint(Sketcher.Constraint("Horizontal", 10, 3, 11, 3))
sketch14.addConstraint(Sketcher.Constraint("Horizontal", 1, 2, 4, 2))
sketch14.addConstraint(Sketcher.Constraint("Horizontal", 3, 2, 6, 2))
sketch14.addConstraint(Sketcher.Constraint("Vertical", 9, 3, 10, 3))
sketch14.addConstraint(Sketcher.Constraint("Vertical", 8, 3, 11, 3))
sketch14.addConstraint(Sketcher.Constraint("Equal", 3, 5))
sketch14.addConstraint(Sketcher.Constraint("Diameter", 8, Q("2.6 mm")))
sketch14.addConstraint(Sketcher.Constraint("DistanceX", 1, 1, 1, 2, Q("4 mm")))
sketch14.addConstraint(Sketcher.Constraint("DistanceY", 0, 1, 0, 2, Q("30 mm")))
sketch14.addConstraint(Sketcher.Constraint("DistanceX", -1, 1, 8, 3, Q("58 mm")))
sketch14.addConstraint(Sketcher.Constraint("DistanceY", 0, 2, -1, 1, Q("25 mm")))
sketch14.addConstraint(Sketcher.Constraint("DistanceX", -1, 1, 4, 2, Q("56 mm")))
sketch14.addConstraint(Sketcher.Constraint("DistanceX", 0, 2, 10, 3, Q("2 mm")))
sketch14.addConstraint(Sketcher.Constraint("DistanceX", -1, 1, 9, 3, Q("18.75 mm")))
sketch14.addConstraint(Sketcher.Constraint("DistanceY", 9, 3, 10, 3, Q("40.25 mm")))
sketch14.addConstraint(Sketcher.Constraint("DistanceY", 8, 3, -1, 1, Q("60.125 mm")))
pocket13 = doc.addObject("PartDesign::Pocket", "Pocket012")
body.addObject(pocket13)
pocket13.Profile = sketch14
pocket13.Length = 10
pocket13.Reversed = True

# Sketch on XZ plane
sketch15 = doc.addObject("Sketcher::SketchObject", "Sketch014")
body.addObject(sketch15)
sketch15.AttachmentSupport = (doc.XZ_Plane, [""])
sketch15.MapMode = "FlatFace"
sketch15.AttachmentOffset = App.Placement(Vector(0, 0, -5), App.Rotation())
sketch15.addGeometry(Part.Circle(Vector(-77, 10, 0), Vector(0, 0, 1), 1.6), False)
sketch15.addGeometry(Part.Circle(Vector(-77, 29, 0), Vector(0, 0, 1), 1.6), False)
sketch15.addGeometry(Part.Circle(Vector(-77, 51, 0), Vector(0, 0, 1), 1.6), False)
sketch15.addGeometry(Part.Circle(Vector(-77, 70, 0), Vector(0, 0, 1), 1.6), False)
sketch15.addGeometry(Part.Circle(Vector(77, 29, 0), Vector(0, 0, 1), 1.6), False)
sketch15.addGeometry(Part.Circle(Vector(77, 10, 0), Vector(0, 0, 1), 1.6), False)
sketch15.addGeometry(Part.Circle(Vector(77, 70, 0), Vector(0, 0, 1), 1.6), False)
sketch15.addGeometry(Part.Circle(Vector(77, 51, 0), Vector(0, 0, 1), 1.6), False)
sketch15.addConstraint(Sketcher.Constraint("Equal", 0, 1))
sketch15.addConstraint(Sketcher.Constraint("Equal", 1, 2))
sketch15.addConstraint(Sketcher.Constraint("Equal", 2, 3))
sketch15.addConstraint(Sketcher.Constraint("Equal", 3, 4))
sketch15.addConstraint(Sketcher.Constraint("Equal", 4, 5))
sketch15.addConstraint(Sketcher.Constraint("Equal", 5, 6))
sketch15.addConstraint(Sketcher.Constraint("Equal", 6, 7))
sketch15.addConstraint(Sketcher.Constraint("Symmetric", 1, 3, 4, 3, -2))
sketch15.addConstraint(Sketcher.Constraint("Symmetric", 0, 3, 5, 3, -2))
sketch15.addConstraint(Sketcher.Constraint("Symmetric", 3, 3, 6, 3, -2))
sketch15.addConstraint(Sketcher.Constraint("Symmetric", 2, 3, 7, 3, -2))
sketch15.addConstraint(Sketcher.Constraint("Vertical", 0, 3, 1, 3))
sketch15.addConstraint(Sketcher.Constraint("Vertical", 1, 3, 2, 3))
sketch15.addConstraint(Sketcher.Constraint("Vertical", 2, 3, 3, 3))
sketch15.addConstraint(Sketcher.Constraint("Diameter", 0, Q("3.1 mm")))
sketch15.addConstraint(Sketcher.Constraint("DistanceX", 0, 3, -1, 1, Q("77 mm")))
sketch15.addConstraint(Sketcher.Constraint("DistanceY", -1, 1, 0, 3, Q("10 mm")))
sketch15.addConstraint(Sketcher.Constraint("DistanceY", -1, 1, 1, 3, Q("29 mm")))
sketch15.addConstraint(Sketcher.Constraint("DistanceY", -1, 1, 2, 3, Q("51 mm")))
sketch15.addConstraint(Sketcher.Constraint("DistanceY", -1, 1, 3, 3, Q("70 mm")))
pocket14 = doc.addObject("PartDesign::Pocket", "Pocket013")
body.addObject(pocket14)
pocket14.Profile = sketch15
pocket14.Type = "ThroughAll"
pocket14.Reversed = True
doc.recompute()

fillet = doc.addObject("PartDesign::Fillet", "Fillet")
body.addObject(fillet)
fillet.Base = (pocket14, edges_at(pocket14, [
    (-90, 2.5, 90),
    (-90, 2.5, -90),
    (90, 2.5, -90),
    (90, 2.5, 90),
]))
fillet.Radius = 3

doc.recompute()
